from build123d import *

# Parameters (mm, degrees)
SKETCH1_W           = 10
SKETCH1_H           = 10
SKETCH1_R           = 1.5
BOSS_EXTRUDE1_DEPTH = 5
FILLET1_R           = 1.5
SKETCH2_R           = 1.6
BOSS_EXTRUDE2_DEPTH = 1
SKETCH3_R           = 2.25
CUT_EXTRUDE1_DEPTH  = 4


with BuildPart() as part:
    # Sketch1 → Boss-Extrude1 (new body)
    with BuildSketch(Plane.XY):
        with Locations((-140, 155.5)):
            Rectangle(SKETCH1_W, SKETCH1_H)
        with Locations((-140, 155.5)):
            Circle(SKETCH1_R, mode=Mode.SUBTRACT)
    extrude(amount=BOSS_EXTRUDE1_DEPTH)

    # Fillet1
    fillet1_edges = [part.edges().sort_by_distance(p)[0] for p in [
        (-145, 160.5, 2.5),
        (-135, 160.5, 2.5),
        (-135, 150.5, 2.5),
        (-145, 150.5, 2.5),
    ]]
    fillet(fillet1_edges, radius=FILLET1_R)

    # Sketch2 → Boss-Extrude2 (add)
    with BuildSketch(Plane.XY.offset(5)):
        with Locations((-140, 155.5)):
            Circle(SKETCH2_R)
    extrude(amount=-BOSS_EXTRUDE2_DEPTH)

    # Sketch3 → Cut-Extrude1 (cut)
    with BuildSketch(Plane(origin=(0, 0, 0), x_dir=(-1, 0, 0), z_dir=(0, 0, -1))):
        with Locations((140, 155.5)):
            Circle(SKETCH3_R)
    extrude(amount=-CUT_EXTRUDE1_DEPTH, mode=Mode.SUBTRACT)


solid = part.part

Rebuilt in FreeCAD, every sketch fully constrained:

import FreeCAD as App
import Part
import Sketcher

V = App.Vector


def edges_at(feature, points):
    """Names of the edges that pass closest to the given points."""
    edges = feature.Shape.Edges
    near = lambda p: min(range(len(edges)), key=lambda i: edges[i].distToShape(Part.Vertex(*p))[0])
    return sorted({f"Edge{near(p) + 1}" for p in points})

doc = App.newDocument("Part")
params = doc.addObject("Spreadsheet::Sheet", "Params")
for row, (alias, value) in enumerate([
    ("sketch1_diameter", "3 mm"),
    ("sketch1_width", "10 mm"),
    ("pad1_length", "5 mm"),
    ("fillet_radius", "1.5 mm"),
    ("sketch2_diameter", "3.2 mm"),
    ("pad2_length", "1 mm"),
    ("sketch3_diameter", "4.5 mm"),
    ("pocket1_length", "4 mm"),
], start=1):
    params.set(f"A{row}", alias)
    params.set(f"B{row}", "=" + value)
    params.setAlias(f"B{row}", alias)

body = doc.addObject("PartDesign::Body", "Body")

# Sketch on XY plane
sketch1 = body.newObject("Sketcher::SketchObject", "Sketch")
sketch1.AttachmentSupport = (doc.getObject("XY_Plane"), [""])
sketch1.MapMode = "FlatFace"
sketch1.addGeometry(Part.LineSegment(V(-145, 160.5, 0), V(-145, 150.5, 0)), False)
sketch1.addGeometry(Part.LineSegment(V(-145, 150.5, 0), V(-135, 150.5, 0)), False)
sketch1.addGeometry(Part.LineSegment(V(-135, 150.5, 0), V(-135, 160.5, 0)), False)
sketch1.addGeometry(Part.LineSegment(V(-135, 160.5, 0), V(-145, 160.5, 0)), False)
sketch1.addGeometry(Part.Circle(V(-140, 155.5, 0), V(0, 0, 1), 1.5), False)
sketch1.addConstraint(Sketcher.Constraint("Coincident", 0, 2, 1, 1))
sketch1.addConstraint(Sketcher.Constraint("Coincident", 1, 2, 2, 1))
sketch1.addConstraint(Sketcher.Constraint("Coincident", 2, 2, 3, 1))
sketch1.addConstraint(Sketcher.Constraint("Coincident", 3, 2, 0, 1))
sketch1.addConstraint(Sketcher.Constraint("Vertical", 0))
sketch1.addConstraint(Sketcher.Constraint("Horizontal", 1))
sketch1.addConstraint(Sketcher.Constraint("Vertical", 2))
sketch1.addConstraint(Sketcher.Constraint("Horizontal", 3))
sketch1.addConstraint(Sketcher.Constraint("Equal", 3, 0))
sketch1.addConstraint(Sketcher.Constraint("Diameter", 4, 3.0))
sketch1.addConstraint(Sketcher.Constraint("DistanceX", 1, 1, 1, 2, 10.0))
sketch1.addConstraint(Sketcher.Constraint("DistanceX", 4, 3, -1, 1, 140.0))
sketch1.addConstraint(Sketcher.Constraint("DistanceX", 0, 2, -1, 1, 145.0))
sketch1.addConstraint(Sketcher.Constraint("DistanceY", 0, 2, 4, 3, 5.0))
sketch1.addConstraint(Sketcher.Constraint("DistanceY", -1, 1, 4, 3, 155.5))
sketch1.setExpression("Constraints[9]", "Params.sketch1_diameter")
sketch1.setExpression("Constraints[10]", "Params.sketch1_width")
pad1 = body.newObject("PartDesign::Pad", "Pad")
pad1.Profile = sketch1
pad1.setExpression("Length", "Params.pad1_length")
doc.recompute()

fillet = body.newObject("PartDesign::Fillet", "Fillet")
fillet.Base = (pad1, edges_at(pad1, [
    (-145, 160.5, 2.5),
    (-135, 160.5, 2.5),
    (-135, 150.5, 2.5),
    (-145, 150.5, 2.5),
]))
fillet.setExpression("Radius", "Params.fillet_radius")

# Sketch on XY plane
sketch2 = body.newObject("Sketcher::SketchObject", "Sketch001")
sketch2.AttachmentSupport = (doc.getObject("XY_Plane"), [""])
sketch2.MapMode = "FlatFace"
sketch2.AttachmentOffset = App.Placement(V(0, 0, 5), App.Rotation())
sketch2.addGeometry(Part.Circle(V(-140, 155.5, 0), V(0, 0, 1), 1.6), False)
sketch2.addConstraint(Sketcher.Constraint("Diameter", 0, 3.2))
sketch2.addConstraint(Sketcher.Constraint("DistanceX", 0, 3, -1, 1, 140.0))
sketch2.addConstraint(Sketcher.Constraint("DistanceY", -1, 1, 0, 3, 155.5))
sketch2.setExpression("Constraints[0]", "Params.sketch2_diameter")
pad2 = body.newObject("PartDesign::Pad", "Pad001")
pad2.Profile = sketch2
pad2.setExpression("Length", "Params.pad2_length")
pad2.Reversed = True

# Sketch on XY plane
sketch3 = body.newObject("Sketcher::SketchObject", "Sketch002")
sketch3.AttachmentSupport = (doc.getObject("XY_Plane"), [""])
sketch3.MapMode = "FlatFace"
sketch3.addGeometry(Part.Circle(V(-140, 155.5, 0), V(0, 0, 1), 2.2), False)
sketch3.addConstraint(Sketcher.Constraint("Diameter", 0, 4.5))
sketch3.addConstraint(Sketcher.Constraint("DistanceX", 0, 3, -1, 1, 140.0))
sketch3.addConstraint(Sketcher.Constraint("DistanceY", -1, 1, 0, 3, 155.5))
sketch3.setExpression("Constraints[0]", "Params.sketch3_diameter")
pocket1 = body.newObject("PartDesign::Pocket", "Pocket")
pocket1.Profile = sketch3
pocket1.setExpression("Length", "Params.pocket1_length")
pocket1.Reversed = True

doc.recompute()
